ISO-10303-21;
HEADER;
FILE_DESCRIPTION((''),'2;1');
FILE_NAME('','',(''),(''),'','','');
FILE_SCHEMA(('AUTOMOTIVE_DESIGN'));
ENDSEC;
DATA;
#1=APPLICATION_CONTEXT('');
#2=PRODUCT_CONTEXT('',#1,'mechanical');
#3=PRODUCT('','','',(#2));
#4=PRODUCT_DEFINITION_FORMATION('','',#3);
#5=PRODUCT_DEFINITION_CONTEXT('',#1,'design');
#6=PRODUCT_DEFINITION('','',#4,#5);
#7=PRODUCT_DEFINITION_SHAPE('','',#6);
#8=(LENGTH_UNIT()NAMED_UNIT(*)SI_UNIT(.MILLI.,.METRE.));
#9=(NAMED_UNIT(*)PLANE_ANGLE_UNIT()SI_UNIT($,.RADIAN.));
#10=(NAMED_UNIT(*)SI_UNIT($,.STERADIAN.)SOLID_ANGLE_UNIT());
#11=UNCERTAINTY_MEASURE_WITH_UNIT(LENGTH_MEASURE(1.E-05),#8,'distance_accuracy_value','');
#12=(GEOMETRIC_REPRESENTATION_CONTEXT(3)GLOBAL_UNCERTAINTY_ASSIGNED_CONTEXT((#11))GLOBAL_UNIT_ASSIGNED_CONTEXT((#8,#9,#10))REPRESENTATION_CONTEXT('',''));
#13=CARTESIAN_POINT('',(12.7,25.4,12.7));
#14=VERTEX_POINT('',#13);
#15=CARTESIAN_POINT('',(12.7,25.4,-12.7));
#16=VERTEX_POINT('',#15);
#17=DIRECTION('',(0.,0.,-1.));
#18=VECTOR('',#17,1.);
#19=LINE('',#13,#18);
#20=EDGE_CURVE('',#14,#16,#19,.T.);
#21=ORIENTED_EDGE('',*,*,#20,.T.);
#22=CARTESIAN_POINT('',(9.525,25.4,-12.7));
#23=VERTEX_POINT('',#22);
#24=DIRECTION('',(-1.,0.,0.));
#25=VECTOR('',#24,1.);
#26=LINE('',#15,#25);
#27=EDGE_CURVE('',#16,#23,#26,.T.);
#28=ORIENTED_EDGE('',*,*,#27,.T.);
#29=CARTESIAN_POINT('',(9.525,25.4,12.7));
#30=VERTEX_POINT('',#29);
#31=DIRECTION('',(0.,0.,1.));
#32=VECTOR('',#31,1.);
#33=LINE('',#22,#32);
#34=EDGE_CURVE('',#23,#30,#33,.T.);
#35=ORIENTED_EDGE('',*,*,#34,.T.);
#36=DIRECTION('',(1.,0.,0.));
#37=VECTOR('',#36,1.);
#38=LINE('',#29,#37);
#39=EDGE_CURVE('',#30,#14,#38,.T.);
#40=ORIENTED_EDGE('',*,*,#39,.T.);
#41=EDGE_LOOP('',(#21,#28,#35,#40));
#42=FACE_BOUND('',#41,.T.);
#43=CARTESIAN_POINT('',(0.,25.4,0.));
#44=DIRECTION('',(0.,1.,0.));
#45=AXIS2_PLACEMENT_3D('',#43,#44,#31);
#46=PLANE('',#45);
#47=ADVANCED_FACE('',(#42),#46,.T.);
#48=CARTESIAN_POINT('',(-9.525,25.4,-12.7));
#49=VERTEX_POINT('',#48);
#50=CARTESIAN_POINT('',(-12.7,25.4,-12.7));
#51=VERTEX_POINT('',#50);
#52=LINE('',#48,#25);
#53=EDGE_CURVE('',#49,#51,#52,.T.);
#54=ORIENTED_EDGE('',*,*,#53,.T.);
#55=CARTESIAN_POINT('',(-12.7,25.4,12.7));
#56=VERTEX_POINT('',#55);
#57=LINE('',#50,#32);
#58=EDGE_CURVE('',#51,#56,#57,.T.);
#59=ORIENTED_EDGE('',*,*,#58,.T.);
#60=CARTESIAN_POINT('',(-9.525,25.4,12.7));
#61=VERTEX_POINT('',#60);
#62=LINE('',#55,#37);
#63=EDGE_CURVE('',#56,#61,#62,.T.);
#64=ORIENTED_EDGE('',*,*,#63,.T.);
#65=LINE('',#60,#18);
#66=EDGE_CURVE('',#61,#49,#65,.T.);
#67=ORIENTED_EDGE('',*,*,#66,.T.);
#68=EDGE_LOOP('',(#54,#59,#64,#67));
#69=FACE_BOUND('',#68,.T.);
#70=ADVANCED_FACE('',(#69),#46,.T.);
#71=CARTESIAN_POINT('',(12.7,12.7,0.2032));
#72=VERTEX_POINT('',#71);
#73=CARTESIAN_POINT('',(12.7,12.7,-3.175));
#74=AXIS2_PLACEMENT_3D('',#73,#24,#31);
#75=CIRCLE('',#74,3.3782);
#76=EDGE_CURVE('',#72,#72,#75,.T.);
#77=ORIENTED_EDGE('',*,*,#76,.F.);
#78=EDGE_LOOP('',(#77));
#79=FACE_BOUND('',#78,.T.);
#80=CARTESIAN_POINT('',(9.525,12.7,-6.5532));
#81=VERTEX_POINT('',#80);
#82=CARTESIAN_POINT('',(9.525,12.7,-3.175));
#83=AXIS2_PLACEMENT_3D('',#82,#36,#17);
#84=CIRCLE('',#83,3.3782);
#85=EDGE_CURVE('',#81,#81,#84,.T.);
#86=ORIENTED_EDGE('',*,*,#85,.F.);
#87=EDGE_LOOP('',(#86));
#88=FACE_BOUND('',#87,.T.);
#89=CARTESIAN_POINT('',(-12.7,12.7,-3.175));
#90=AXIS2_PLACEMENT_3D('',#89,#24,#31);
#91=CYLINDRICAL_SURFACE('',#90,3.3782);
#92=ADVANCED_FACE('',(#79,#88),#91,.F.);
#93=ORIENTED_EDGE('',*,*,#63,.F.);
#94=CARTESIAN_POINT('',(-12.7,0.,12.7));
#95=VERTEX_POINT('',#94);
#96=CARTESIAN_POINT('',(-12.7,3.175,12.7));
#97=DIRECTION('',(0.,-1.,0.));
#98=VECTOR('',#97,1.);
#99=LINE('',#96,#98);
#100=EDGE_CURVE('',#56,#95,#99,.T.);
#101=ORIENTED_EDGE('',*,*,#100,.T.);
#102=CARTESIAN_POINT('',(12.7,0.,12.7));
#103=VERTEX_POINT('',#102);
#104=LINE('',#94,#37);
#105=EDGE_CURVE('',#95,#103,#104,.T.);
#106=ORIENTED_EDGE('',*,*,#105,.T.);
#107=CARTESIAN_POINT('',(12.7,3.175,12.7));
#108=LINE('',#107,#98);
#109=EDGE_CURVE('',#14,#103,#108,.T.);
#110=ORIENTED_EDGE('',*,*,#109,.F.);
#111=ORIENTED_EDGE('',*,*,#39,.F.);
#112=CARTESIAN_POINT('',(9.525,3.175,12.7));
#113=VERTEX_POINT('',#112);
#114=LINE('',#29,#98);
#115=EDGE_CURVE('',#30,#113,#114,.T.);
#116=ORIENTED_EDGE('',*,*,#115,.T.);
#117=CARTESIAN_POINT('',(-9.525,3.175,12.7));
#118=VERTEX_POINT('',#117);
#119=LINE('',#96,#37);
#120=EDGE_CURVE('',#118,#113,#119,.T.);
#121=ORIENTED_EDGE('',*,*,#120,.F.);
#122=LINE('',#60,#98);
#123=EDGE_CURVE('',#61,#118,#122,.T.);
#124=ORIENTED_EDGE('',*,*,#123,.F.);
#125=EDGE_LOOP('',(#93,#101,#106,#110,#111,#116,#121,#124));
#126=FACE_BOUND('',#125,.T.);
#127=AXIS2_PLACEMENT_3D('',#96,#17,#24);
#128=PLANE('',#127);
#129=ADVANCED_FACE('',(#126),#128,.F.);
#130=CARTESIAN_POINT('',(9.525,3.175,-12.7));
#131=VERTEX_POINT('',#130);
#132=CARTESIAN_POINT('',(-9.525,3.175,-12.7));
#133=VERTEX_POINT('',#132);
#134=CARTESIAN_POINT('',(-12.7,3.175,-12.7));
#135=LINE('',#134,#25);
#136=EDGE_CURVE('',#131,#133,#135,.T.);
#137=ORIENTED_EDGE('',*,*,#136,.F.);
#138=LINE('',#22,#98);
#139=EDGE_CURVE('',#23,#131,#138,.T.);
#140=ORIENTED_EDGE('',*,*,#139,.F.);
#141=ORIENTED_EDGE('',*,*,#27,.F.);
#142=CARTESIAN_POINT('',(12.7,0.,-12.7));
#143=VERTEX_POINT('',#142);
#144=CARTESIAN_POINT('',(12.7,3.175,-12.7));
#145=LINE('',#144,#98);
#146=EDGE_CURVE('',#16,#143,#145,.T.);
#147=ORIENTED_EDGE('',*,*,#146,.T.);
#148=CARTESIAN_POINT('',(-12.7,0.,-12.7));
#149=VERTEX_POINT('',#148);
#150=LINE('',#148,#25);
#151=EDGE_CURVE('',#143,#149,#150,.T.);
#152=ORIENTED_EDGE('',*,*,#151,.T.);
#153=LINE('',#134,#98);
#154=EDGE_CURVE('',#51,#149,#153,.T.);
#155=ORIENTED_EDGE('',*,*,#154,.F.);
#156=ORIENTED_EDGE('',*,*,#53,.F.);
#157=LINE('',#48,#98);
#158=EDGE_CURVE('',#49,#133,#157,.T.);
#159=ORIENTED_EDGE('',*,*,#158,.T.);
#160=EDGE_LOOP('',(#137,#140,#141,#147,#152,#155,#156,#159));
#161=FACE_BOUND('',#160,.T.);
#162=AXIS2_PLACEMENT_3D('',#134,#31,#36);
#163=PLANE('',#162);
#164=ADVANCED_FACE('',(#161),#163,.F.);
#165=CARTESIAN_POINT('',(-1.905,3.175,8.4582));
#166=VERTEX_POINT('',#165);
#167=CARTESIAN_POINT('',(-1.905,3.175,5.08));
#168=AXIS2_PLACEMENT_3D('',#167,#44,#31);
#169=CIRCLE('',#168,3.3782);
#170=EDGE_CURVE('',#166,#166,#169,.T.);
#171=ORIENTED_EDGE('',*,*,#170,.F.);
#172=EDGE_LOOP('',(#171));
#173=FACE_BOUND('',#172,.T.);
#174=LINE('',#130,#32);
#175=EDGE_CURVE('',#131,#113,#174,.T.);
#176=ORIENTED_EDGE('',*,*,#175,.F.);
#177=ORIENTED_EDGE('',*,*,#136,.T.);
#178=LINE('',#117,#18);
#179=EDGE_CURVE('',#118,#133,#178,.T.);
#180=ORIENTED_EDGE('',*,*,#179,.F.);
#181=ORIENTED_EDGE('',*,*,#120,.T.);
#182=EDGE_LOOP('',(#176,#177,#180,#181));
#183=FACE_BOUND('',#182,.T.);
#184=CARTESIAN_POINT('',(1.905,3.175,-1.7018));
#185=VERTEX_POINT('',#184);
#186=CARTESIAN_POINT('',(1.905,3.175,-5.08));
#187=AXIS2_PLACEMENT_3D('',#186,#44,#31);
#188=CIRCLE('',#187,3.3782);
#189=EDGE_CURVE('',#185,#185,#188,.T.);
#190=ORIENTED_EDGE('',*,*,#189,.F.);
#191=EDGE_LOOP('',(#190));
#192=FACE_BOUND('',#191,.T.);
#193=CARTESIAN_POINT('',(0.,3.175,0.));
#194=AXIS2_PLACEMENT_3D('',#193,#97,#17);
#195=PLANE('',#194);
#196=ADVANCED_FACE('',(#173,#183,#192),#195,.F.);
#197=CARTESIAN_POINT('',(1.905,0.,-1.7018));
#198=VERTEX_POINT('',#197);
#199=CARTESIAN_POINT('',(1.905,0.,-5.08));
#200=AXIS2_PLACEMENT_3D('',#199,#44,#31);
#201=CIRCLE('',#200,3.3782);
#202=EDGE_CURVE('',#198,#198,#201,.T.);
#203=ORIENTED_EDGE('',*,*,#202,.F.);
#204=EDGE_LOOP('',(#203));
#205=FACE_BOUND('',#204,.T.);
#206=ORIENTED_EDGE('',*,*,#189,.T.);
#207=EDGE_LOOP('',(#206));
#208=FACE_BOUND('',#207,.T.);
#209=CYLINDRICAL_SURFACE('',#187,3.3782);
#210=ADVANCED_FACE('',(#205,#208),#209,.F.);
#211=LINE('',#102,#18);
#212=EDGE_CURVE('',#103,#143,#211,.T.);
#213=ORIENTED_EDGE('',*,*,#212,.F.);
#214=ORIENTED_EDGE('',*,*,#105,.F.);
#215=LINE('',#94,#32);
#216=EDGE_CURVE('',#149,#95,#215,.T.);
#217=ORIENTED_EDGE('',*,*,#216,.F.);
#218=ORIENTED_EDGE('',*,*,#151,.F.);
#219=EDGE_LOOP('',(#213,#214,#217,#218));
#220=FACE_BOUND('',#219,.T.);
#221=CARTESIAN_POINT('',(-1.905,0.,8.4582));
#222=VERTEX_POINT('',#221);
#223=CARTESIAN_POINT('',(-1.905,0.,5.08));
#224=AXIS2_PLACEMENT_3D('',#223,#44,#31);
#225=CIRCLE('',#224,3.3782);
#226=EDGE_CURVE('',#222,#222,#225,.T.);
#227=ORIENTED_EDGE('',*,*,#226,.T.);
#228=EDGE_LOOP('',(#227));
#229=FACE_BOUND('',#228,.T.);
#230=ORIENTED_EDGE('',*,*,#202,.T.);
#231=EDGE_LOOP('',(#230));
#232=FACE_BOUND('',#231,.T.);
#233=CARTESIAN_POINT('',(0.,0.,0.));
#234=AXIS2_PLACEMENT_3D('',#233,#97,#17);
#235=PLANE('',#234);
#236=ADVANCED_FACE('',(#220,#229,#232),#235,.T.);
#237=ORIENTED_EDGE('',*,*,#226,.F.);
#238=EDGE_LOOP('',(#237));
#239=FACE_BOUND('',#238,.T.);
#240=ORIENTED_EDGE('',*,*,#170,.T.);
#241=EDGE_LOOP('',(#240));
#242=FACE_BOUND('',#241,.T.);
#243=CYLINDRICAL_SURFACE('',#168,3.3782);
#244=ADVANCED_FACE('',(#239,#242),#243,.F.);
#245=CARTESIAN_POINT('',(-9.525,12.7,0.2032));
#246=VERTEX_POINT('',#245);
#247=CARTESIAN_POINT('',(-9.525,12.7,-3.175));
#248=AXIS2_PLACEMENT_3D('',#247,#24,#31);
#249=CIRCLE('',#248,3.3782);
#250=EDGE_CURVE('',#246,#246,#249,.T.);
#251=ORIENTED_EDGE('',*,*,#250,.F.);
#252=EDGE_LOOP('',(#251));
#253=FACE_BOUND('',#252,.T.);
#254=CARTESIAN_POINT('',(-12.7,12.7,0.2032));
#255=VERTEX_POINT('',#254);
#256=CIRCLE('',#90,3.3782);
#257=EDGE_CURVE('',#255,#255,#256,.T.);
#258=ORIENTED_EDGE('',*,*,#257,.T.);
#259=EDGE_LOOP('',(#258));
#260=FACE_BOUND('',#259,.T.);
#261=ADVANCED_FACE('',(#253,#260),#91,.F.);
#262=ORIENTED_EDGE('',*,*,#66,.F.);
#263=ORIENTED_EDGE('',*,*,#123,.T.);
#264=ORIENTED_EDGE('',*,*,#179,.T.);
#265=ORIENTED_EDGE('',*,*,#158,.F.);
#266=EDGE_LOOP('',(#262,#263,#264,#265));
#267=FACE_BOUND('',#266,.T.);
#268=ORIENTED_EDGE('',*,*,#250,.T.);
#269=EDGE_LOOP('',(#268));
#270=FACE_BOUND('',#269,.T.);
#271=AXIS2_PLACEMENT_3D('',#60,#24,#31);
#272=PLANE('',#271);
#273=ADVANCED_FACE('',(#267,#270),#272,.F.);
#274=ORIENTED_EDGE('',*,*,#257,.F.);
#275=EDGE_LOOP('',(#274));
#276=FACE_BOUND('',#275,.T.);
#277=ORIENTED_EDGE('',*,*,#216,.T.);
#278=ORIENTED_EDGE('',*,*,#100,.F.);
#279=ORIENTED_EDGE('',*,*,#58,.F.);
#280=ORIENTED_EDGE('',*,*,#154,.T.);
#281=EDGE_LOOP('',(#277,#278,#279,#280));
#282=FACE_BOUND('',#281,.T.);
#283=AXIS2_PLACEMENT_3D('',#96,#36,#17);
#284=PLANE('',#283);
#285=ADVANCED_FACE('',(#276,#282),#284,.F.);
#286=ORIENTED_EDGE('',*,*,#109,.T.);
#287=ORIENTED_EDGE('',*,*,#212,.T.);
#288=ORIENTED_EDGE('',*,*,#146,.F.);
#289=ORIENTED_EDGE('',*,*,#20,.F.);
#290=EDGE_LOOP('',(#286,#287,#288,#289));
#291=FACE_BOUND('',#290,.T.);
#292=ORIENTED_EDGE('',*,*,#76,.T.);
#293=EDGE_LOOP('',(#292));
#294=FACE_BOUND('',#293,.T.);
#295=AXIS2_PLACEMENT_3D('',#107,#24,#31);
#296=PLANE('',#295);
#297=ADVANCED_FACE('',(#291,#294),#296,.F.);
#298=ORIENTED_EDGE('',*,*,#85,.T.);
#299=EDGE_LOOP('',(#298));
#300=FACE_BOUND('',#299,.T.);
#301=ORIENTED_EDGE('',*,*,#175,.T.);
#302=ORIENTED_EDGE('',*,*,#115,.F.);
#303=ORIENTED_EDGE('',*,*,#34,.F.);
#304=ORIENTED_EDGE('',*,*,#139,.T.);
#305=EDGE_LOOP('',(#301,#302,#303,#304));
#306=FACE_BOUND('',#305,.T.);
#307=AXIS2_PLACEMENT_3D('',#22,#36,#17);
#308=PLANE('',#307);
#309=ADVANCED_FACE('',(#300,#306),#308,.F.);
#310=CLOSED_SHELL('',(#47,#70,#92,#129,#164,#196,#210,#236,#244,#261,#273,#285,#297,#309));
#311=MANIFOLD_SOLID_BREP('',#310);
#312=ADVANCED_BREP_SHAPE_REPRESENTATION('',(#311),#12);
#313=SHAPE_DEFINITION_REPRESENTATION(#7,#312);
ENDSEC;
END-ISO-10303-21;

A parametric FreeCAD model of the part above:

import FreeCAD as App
import Part
import Sketcher
from FreeCAD import Vector
Q = App.Units.Quantity


def add_polygon(sketch, points):
    """Adds a closed chain of lines whose ends are joined by coincident constraints."""
    first, n = sketch.GeometryCount, len(points)
    for a, b in zip(points, points[1:] + points[:1]):
        sketch.addGeometry(Part.LineSegment(App.Vector(*a, 0), App.Vector(*b, 0)), False)
    for i in range(n):
        sketch.addConstraint(Sketcher.Constraint("Coincident", first + i, 2, first + (i + 1) % n, 1))

doc = App.newDocument("Part")
body = doc.addObject("PartDesign::Body", "Body")

sketch1 = body.newObject("Sketcher::SketchObject", "Sketch")
sketch1.AttachmentSupport = (doc.getObject("XZ_Plane"), [""])
sketch1.MapMode = "FlatFace"
add_polygon(sketch1, [(-12.7, -12.7), (-12.7, 12.7), (12.7, 12.7), (12.7, -12.7)])
sketch1.addConstraint([
    Sketcher.Constraint("Vertical", 0),
    Sketcher.Constraint("Horizontal", 1),
    Sketcher.Constraint("Vertical", 2),
    Sketcher.Constraint("Horizontal", 3),
    Sketcher.Constraint("Symmetric", 0, 2, 2, 2, -1, 1),
    Sketcher.Constraint("Equal", 3, 0),
    Sketcher.Constraint("DistanceX", 1, 1, 1, 2, Q("1 in")),
])
pad1 = body.newObject("PartDesign::Pad", "Pad")
pad1.Profile = sketch1
pad1.Length = Q("0.125 in")
pad1.Reversed = True

sketch2 = body.newObject("Sketcher::SketchObject", "Sketch001")
sketch2.AttachmentSupport = (doc.getObject("XZ_Plane"), [""])
sketch2.MapMode = "FlatFace"
sketch2.AttachmentOffset = App.Placement(Vector(0, 0, -0.125 * 25.4), App.Rotation())
add_polygon(sketch2, [(-12.7, -12.7), (-12.7, 12.7), (-9.525, 12.7), (-9.525, -12.7)])
add_polygon(sketch2, [(9.525, -12.7), (9.525, 12.7), (12.7, 12.7), (12.7, -12.7)])
sketch2.addConstraint([
    Sketcher.Constraint("Vertical", 0),
    Sketcher.Constraint("Horizontal", 1),
    Sketcher.Constraint("Vertical", 2),
    Sketcher.Constraint("Horizontal", 3),
    Sketcher.Constraint("Vertical", 4),
    Sketcher.Constraint("Horizontal", 5),
    Sketcher.Constraint("Vertical", 6),
    Sketcher.Constraint("Horizontal", 7),
    Sketcher.Constraint("Symmetric", 2, 2, 4, 2, -1, 1),
    Sketcher.Constraint("Symmetric", 0, 2, 6, 2, -1, 1),
    Sketcher.Constraint("Horizontal", 1, 2, 4, 2),
    Sketcher.Constraint("DistanceY", 0, 1, 0, 2, Q("1 in")),
    Sketcher.Constraint("DistanceX", 0, 2, 5, 2, Q("1 in")),
    Sketcher.Constraint("DistanceX", 1, 1, 1, 2, Q("0.125 in")),
])
pad2 = body.newObject("PartDesign::Pad", "Pad001")
pad2.Profile = sketch2
pad2.Length = Q("0.875 in")
pad2.Reversed = True

sketch3 = body.newObject("Sketcher::SketchObject", "Sketch002")
sketch3.AttachmentSupport = (doc.getObject("XZ_Plane"), [""])
sketch3.MapMode = "FlatFace"
sketch3.AttachmentOffset = App.Placement(Vector(0, 0, -0.125 * 25.4), App.Rotation())
sketch3.addGeometry([
    Part.Circle(Vector(1.905, -5.08, 0), Vector(0, 0, 1), 3.3782),
    Part.Circle(Vector(-1.905, 5.08, 0), Vector(0, 0, 1), 3.3782),
], False)
sketch3.addConstraint([
    Sketcher.Constraint("Equal", 0, 1),
    Sketcher.Constraint("Symmetric", 0, 3, 1, 3, -1, 1),
    Sketcher.Constraint("Diameter", 0, Q("0.266 in")),
    Sketcher.Constraint("DistanceY", 0, 3, -1, 1, Q("0.2 in")),
    Sketcher.Constraint("DistanceX", 1, 3, 0, 3, Q("0.15 in")),
])
doc.recompute()
hole = body.newObject("PartDesign::Hole", "Hole")
hole.Profile = sketch3
hole.ThreadType = "None"
hole.Diameter = Q("0.266 in")
hole.DepthType = "ThroughAll"
hole.Reversed = True

sketch4 = body.newObject("Sketcher::SketchObject", "Sketch003")
sketch4.AttachmentSupport = (doc.getObject("YZ_Plane"), [""])
sketch4.MapMode = "FlatFace"
sketch4.AttachmentOffset = App.Placement(Vector(0, 0, -0.5 * 25.4), App.Rotation())
sketch4.addGeometry(Part.Circle(Vector(12.7, -3.175, 0), Vector(0, 0, 1), 3.3782), False)
sketch4.addConstraint([
    Sketcher.Constraint("Diameter", 0, Q("0.266 in")),
    Sketcher.Constraint("DistanceX", -1, 1, 0, 3, Q("0.5 in")),
    Sketcher.Constraint("DistanceY", 0, 3, -1, 1, Q("0.125 in")),
])
doc.recompute()
hole2 = body.newObject("PartDesign::Hole", "Hole001")
hole2.Profile = sketch4
hole2.ThreadType = "None"
hole2.Diameter = Q("0.266 in")
hole2.DepthType = "ThroughAll"
hole2.Reversed = True

doc.recompute()
